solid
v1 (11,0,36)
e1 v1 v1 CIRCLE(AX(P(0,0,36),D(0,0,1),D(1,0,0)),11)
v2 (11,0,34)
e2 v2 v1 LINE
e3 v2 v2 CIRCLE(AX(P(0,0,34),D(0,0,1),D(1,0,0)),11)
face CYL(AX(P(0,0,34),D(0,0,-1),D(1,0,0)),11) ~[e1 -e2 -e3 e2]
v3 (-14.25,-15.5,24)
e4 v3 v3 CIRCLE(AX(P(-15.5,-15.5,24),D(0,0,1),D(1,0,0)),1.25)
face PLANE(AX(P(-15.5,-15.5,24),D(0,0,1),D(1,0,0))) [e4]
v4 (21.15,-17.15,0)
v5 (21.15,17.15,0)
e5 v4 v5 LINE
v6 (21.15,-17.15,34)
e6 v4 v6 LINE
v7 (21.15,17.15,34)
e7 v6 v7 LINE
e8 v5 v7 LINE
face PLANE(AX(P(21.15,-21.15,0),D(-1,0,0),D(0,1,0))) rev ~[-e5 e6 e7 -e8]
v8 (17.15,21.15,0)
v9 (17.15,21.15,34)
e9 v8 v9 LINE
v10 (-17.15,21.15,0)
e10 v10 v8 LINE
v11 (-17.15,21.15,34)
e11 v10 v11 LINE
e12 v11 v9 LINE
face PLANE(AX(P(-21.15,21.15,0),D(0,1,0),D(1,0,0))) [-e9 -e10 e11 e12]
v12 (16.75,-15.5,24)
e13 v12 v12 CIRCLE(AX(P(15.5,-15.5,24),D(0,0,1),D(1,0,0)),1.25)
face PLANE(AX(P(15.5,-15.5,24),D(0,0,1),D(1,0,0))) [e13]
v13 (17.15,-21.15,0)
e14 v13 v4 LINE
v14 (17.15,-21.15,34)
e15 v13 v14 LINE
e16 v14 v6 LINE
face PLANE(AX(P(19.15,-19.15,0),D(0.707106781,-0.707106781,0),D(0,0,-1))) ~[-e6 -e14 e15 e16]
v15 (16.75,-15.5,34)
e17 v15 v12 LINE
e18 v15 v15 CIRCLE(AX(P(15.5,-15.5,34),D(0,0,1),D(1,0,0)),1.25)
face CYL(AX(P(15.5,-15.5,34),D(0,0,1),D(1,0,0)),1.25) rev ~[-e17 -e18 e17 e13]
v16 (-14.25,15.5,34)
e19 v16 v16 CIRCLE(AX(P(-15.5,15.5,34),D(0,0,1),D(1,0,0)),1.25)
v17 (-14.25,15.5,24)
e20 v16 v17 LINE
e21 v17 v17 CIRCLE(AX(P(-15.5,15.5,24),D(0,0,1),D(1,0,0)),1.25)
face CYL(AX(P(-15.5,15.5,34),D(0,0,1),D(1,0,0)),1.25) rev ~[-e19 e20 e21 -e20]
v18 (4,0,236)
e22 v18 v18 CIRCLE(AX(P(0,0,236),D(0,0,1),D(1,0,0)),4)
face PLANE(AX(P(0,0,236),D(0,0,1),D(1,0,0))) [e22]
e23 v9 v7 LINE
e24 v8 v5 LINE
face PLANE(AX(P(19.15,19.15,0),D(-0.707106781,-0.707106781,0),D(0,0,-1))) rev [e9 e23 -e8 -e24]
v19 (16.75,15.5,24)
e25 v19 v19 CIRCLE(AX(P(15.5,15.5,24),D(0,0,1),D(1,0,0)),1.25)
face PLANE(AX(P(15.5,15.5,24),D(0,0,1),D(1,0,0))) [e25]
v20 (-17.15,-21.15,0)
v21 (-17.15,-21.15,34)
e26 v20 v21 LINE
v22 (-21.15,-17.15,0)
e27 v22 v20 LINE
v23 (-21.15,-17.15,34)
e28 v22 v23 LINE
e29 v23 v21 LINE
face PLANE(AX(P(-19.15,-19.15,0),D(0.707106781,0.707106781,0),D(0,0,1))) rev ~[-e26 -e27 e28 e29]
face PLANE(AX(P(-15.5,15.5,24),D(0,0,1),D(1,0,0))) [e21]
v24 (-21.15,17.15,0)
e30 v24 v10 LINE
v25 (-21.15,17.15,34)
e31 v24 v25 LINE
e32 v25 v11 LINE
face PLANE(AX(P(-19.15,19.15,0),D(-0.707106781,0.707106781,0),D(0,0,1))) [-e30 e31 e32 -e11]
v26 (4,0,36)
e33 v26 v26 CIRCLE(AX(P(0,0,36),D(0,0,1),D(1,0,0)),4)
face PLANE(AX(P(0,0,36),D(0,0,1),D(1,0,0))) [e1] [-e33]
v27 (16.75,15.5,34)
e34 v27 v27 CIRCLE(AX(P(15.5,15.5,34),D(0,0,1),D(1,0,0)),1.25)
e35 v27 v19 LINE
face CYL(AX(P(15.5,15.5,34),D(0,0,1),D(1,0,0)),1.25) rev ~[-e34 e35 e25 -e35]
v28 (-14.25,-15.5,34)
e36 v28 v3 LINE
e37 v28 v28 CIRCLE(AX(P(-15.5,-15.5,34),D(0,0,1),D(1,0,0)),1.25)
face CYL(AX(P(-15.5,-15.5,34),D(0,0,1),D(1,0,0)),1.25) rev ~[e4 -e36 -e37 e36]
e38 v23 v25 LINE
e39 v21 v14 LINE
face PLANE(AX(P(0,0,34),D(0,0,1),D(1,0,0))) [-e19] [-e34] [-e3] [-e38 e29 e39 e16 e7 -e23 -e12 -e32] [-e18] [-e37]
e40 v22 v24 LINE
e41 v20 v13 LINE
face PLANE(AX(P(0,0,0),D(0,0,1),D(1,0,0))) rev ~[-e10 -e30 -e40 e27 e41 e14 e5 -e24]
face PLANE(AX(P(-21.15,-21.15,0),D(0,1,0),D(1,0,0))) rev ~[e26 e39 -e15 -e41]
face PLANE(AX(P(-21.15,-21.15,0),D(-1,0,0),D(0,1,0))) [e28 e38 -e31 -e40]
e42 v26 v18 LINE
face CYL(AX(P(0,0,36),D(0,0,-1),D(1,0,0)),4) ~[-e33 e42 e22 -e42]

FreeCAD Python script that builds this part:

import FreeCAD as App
import Part
import Sketcher


def edges_at(feature, points):
    """Names of the edges that pass closest to the given points."""
    edges = feature.Shape.Edges
    near = lambda p: min(range(len(edges)), key=lambda i: edges[i].distToShape(Part.Vertex(*p))[0])
    return sorted({f"Edge{near(p) + 1}" for p in points})

doc = App.newDocument("Part")
params = doc.addObject("Spreadsheet::Sheet", "Params")
for row, (alias, value) in enumerate([
    ("sketch1_width", "42.3 mm"),
    ("pad1_length", "34 mm"),
    ("sketch2_diameter", "22 mm"),
    ("pad2_length", "2 mm"),
    ("sketch3_diameter", "8 mm"),
    ("pad3_length", "200 mm"),
    ("chamfer_size", "4 mm"),
    ("sketch4_diameter", "2.5 mm"),
    ("pocket1_length", "10 mm"),
], start=1):
    params.set(f"A{row}", alias)
    params.set(f"B{row}", "=" + value)
    params.setAlias(f"B{row}", alias)

body = doc.addObject("PartDesign::Body", "Body")

# Sketch on XY plane
sketch1 = doc.addObject("Sketcher::SketchObject", "Sketch")
body.addObject(sketch1)
sketch1.AttachmentSupport = (doc.XY_Plane, [""])
sketch1.MapMode = "FlatFace"
sketch1.addGeometry([
    Part.LineSegment(App.Vector(-21, 21, 0), App.Vector(-21, -21, 0)),
    Part.LineSegment(App.Vector(-21, -21, 0), App.Vector(21, -21, 0)),
    Part.LineSegment(App.Vector(21, -21, 0), App.Vector(21, 21, 0)),
    Part.LineSegment(App.Vector(21, 21, 0), App.Vector(-21, 21, 0)),
], False)
sketch1.addConstraint([
    Sketcher.Constraint("Coincident", 0, 2, 1, 1),
    Sketcher.Constraint("Coincident", 1, 2, 2, 1),
    Sketcher.Constraint("Coincident", 2, 2, 3, 1),
    Sketcher.Constraint("Coincident", 3, 2, 0, 1),
    Sketcher.Constraint("Vertical", 0),
    Sketcher.Constraint("Horizontal", 1),
    Sketcher.Constraint("Vertical", 2),
    Sketcher.Constraint("Horizontal", 3),
    Sketcher.Constraint("Symmetric", 0, 2, 2, 2, -1, 1),
    Sketcher.Constraint("Equal", 3, 0),
    Sketcher.Constraint("DistanceX", 1, 1, 1, 2, 42.3),
])
sketch1.setExpression("Constraints[10]", "Params.sketch1_width")
pad1 = doc.addObject("PartDesign::Pad", "Pad")
body.addObject(pad1)
pad1.Profile = sketch1
pad1.setExpression("Length", "Params.pad1_length")

# Sketch on XY plane
sketch2 = doc.addObject("Sketcher::SketchObject", "Sketch001")
body.addObject(sketch2)
sketch2.AttachmentSupport = (doc.XY_Plane, [""])
sketch2.MapMode = "FlatFace"
sketch2.AttachmentOffset = App.Placement(App.Vector(0, 0, 34), App.Rotation())
sketch2.addGeometry(Part.Circle(App.Vector(0, 0, 0), App.Vector(0, 0, 1), 11), False)
sketch2.addConstraint([
    Sketcher.Constraint("Coincident", 0, 3, -1, 1),
    Sketcher.Constraint("Diameter", 0, 22.0),
])
sketch2.setExpression("Constraints[1]", "Params.sketch2_diameter")
pad2 = doc.addObject("PartDesign::Pad", "Pad001")
body.addObject(pad2)
pad2.Profile = sketch2
pad2.setExpression("Length", "Params.pad2_length")

# Sketch on XY plane
sketch3 = doc.addObject("Sketcher::SketchObject", "Sketch002")
body.addObject(sketch3)
sketch3.AttachmentSupport = (doc.XY_Plane, [""])
sketch3.MapMode = "FlatFace"
sketch3.AttachmentOffset = App.Placement(App.Vector(0, 0, 36), App.Rotation())
sketch3.addGeometry(Part.Circle(App.Vector(0, 0, 0), App.Vector(0, 0, 1), 4), False)
sketch3.addConstraint([
    Sketcher.Constraint("Coincident", 0, 3, -1, 1),
    Sketcher.Constraint("Diameter", 0, 8.0),
])
sketch3.setExpression("Constraints[1]", "Params.sketch3_diameter")
pad3 = doc.addObject("PartDesign::Pad", "Pad002")
body.addObject(pad3)
pad3.Profile = sketch3
pad3.setExpression("Length", "Params.pad3_length")
doc.recompute()

chamfer = doc.addObject("PartDesign::Chamfer", "Chamfer")
body.addObject(chamfer)
chamfer.Base = (pad3, edges_at(pad3, [
    (21.15, -21.15, 17),
    (-21.15, -21.15, 17),
    (-21.15, 21.15, 17),
    (21.15, 21.15, 17),
]))
chamfer.setExpression("Size", "Params.chamfer_size")

# Sketch on XY plane
sketch4 = doc.addObject("Sketcher::SketchObject", "Sketch003")
body.addObject(sketch4)
sketch4.AttachmentSupport = (doc.XY_Plane, [""])
sketch4.MapMode = "FlatFace"
sketch4.AttachmentOffset = App.Placement(App.Vector(0, 0, 34), App.Rotation())
sketch4.addGeometry([
    Part.Circle(App.Vector(-15.5, 15.5, 0), App.Vector(0, 0, 1), 1.2),
    Part.Circle(App.Vector(15.5, 15.5, 0), App.Vector(0, 0, 1), 1.2),
    Part.Circle(App.Vector(15.5, -15.5, 0), App.Vector(0, 0, 1), 1.2),
    Part.Circle(App.Vector(-15.5, -15.5, 0), App.Vector(0, 0, 1), 1.2),
], False)
sketch4.addConstraint([
    Sketcher.Constraint("Equal", 0, 1),
    Sketcher.Constraint("Equal", 1, 2),
    Sketcher.Constraint("Equal", 2, 3),
    Sketcher.Constraint("Symmetric", 0, 3, 2, 3, -1, 1),
    Sketcher.Constraint("Symmetric", 1, 3, 3, 3, -1, 1),
    Sketcher.Constraint("Symmetric", 0, 3, 1, 3, -2),
    Sketcher.Constraint("Diameter", 0, 2.5),
    Sketcher.Constraint("DistanceX", 0, 3, 1, 3, 31.0),
    Sketcher.Constraint("DistanceY", 2, 3, 1, 3, 31.0),
])
sketch4.setExpression("Constraints[6]", "Params.sketch4_diameter")
pocket1 = doc.addObject("PartDesign::Pocket", "Pocket")
body.addObject(pocket1)
pocket1.Profile = sketch4
pocket1.setExpression("Length", "Params.pocket1_length")

doc.recompute()
